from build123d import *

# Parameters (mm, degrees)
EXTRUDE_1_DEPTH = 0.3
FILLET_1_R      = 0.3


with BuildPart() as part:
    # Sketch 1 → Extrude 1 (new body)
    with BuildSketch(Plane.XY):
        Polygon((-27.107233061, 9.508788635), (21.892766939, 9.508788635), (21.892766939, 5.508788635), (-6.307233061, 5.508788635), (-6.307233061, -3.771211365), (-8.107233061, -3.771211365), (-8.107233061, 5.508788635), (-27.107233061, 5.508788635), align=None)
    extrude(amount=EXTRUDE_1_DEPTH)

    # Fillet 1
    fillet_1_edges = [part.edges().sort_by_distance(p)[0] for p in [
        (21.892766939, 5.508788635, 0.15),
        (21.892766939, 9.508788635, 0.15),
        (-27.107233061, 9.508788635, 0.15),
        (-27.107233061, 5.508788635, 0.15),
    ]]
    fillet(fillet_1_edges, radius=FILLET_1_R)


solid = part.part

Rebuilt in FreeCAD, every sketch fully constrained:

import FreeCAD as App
import Part
import Sketcher


def edges_at(feature, points):
    """Names of the edges that pass closest to the given points."""
    edges = feature.Shape.Edges
    near = lambda p: min(range(len(edges)), key=lambda i: edges[i].distToShape(Part.Vertex(*p))[0])
    return sorted({f"Edge{near(p) + 1}" for p in points})


def add_polygon(sketch, points):
    """Adds a closed chain of lines whose ends are joined by coincident constraints."""
    first, n = sketch.GeometryCount, len(points)
    for a, b in zip(points, points[1:] + points[:1]):
        sketch.addGeometry(Part.LineSegment(App.Vector(*a, 0), App.Vector(*b, 0)), False)
    for i in range(n):
        sketch.addConstraint(Sketcher.Constraint("Coincident", first + i, 2, first + (i + 1) % n, 1))

doc = App.newDocument("Part")
body = doc.addObject("PartDesign::Body", "Body")

# Sketch on XY plane
sketch1 = body.newObject("Sketcher::SketchObject", "Sketch")
sketch1.AttachmentSupport = (doc.getObject("XY_Plane"), [""])
sketch1.MapMode = "FlatFace"
add_polygon(sketch1, [(21.9, 9.5), (-27.1, 9.5), (-27.1, 5.5), (-8.1, 5.5), (-8.1, -3.8), (-6.3, -3.8), (-6.3, 5.5), (21.9, 5.5)])  # lines 0-7
sketch1.addConstraint([
    Sketcher.Constraint("Horizontal", 0),
    Sketcher.Constraint("Vertical", 1),
    Sketcher.Constraint("Horizontal", 2),
    Sketcher.Constraint("Vertical", 3),
    Sketcher.Constraint("Horizontal", 4),
    Sketcher.Constraint("Vertical", 5),
    Sketcher.Constraint("Horizontal", 6),
    Sketcher.Constraint("Vertical", 7),
    Sketcher.Constraint("Horizontal", 2, 2, 5, 2),
    Sketcher.Constraint("DistanceX", 0, 2, 0, 1, 49.0),
    Sketcher.Constraint("DistanceX", 2, 1, 2, 2, 19.0),
    Sketcher.Constraint("DistanceY", 1, 2, 1, 1, 4.0),
    Sketcher.Constraint("DistanceX", 4, 1, 4, 2, 1.8),
    Sketcher.Constraint("DistanceY", 3, 2, 3, 1, 9.28),
    Sketcher.Constraint("DistanceY", -1, 1, 0, 2, 9.508789),
    Sketcher.Constraint("DistanceX", 0, 2, -1, 1, 27.107233),
])
pad1 = body.newObject("PartDesign::Pad", "Pad")
pad1.Profile = sketch1
pad1.Length = 0.3
doc.recompute()

fillet = body.newObject("PartDesign::Fillet", "Fillet")
fillet.Base = (pad1, edges_at(pad1, [
    (21.893, 5.509, 0.15),
    (21.893, 9.509, 0.15),
    (-27.107, 9.509, 0.15),
    (-27.107, 5.509, 0.15),
]))
fillet.Radius = 0.3

doc.recompute()
